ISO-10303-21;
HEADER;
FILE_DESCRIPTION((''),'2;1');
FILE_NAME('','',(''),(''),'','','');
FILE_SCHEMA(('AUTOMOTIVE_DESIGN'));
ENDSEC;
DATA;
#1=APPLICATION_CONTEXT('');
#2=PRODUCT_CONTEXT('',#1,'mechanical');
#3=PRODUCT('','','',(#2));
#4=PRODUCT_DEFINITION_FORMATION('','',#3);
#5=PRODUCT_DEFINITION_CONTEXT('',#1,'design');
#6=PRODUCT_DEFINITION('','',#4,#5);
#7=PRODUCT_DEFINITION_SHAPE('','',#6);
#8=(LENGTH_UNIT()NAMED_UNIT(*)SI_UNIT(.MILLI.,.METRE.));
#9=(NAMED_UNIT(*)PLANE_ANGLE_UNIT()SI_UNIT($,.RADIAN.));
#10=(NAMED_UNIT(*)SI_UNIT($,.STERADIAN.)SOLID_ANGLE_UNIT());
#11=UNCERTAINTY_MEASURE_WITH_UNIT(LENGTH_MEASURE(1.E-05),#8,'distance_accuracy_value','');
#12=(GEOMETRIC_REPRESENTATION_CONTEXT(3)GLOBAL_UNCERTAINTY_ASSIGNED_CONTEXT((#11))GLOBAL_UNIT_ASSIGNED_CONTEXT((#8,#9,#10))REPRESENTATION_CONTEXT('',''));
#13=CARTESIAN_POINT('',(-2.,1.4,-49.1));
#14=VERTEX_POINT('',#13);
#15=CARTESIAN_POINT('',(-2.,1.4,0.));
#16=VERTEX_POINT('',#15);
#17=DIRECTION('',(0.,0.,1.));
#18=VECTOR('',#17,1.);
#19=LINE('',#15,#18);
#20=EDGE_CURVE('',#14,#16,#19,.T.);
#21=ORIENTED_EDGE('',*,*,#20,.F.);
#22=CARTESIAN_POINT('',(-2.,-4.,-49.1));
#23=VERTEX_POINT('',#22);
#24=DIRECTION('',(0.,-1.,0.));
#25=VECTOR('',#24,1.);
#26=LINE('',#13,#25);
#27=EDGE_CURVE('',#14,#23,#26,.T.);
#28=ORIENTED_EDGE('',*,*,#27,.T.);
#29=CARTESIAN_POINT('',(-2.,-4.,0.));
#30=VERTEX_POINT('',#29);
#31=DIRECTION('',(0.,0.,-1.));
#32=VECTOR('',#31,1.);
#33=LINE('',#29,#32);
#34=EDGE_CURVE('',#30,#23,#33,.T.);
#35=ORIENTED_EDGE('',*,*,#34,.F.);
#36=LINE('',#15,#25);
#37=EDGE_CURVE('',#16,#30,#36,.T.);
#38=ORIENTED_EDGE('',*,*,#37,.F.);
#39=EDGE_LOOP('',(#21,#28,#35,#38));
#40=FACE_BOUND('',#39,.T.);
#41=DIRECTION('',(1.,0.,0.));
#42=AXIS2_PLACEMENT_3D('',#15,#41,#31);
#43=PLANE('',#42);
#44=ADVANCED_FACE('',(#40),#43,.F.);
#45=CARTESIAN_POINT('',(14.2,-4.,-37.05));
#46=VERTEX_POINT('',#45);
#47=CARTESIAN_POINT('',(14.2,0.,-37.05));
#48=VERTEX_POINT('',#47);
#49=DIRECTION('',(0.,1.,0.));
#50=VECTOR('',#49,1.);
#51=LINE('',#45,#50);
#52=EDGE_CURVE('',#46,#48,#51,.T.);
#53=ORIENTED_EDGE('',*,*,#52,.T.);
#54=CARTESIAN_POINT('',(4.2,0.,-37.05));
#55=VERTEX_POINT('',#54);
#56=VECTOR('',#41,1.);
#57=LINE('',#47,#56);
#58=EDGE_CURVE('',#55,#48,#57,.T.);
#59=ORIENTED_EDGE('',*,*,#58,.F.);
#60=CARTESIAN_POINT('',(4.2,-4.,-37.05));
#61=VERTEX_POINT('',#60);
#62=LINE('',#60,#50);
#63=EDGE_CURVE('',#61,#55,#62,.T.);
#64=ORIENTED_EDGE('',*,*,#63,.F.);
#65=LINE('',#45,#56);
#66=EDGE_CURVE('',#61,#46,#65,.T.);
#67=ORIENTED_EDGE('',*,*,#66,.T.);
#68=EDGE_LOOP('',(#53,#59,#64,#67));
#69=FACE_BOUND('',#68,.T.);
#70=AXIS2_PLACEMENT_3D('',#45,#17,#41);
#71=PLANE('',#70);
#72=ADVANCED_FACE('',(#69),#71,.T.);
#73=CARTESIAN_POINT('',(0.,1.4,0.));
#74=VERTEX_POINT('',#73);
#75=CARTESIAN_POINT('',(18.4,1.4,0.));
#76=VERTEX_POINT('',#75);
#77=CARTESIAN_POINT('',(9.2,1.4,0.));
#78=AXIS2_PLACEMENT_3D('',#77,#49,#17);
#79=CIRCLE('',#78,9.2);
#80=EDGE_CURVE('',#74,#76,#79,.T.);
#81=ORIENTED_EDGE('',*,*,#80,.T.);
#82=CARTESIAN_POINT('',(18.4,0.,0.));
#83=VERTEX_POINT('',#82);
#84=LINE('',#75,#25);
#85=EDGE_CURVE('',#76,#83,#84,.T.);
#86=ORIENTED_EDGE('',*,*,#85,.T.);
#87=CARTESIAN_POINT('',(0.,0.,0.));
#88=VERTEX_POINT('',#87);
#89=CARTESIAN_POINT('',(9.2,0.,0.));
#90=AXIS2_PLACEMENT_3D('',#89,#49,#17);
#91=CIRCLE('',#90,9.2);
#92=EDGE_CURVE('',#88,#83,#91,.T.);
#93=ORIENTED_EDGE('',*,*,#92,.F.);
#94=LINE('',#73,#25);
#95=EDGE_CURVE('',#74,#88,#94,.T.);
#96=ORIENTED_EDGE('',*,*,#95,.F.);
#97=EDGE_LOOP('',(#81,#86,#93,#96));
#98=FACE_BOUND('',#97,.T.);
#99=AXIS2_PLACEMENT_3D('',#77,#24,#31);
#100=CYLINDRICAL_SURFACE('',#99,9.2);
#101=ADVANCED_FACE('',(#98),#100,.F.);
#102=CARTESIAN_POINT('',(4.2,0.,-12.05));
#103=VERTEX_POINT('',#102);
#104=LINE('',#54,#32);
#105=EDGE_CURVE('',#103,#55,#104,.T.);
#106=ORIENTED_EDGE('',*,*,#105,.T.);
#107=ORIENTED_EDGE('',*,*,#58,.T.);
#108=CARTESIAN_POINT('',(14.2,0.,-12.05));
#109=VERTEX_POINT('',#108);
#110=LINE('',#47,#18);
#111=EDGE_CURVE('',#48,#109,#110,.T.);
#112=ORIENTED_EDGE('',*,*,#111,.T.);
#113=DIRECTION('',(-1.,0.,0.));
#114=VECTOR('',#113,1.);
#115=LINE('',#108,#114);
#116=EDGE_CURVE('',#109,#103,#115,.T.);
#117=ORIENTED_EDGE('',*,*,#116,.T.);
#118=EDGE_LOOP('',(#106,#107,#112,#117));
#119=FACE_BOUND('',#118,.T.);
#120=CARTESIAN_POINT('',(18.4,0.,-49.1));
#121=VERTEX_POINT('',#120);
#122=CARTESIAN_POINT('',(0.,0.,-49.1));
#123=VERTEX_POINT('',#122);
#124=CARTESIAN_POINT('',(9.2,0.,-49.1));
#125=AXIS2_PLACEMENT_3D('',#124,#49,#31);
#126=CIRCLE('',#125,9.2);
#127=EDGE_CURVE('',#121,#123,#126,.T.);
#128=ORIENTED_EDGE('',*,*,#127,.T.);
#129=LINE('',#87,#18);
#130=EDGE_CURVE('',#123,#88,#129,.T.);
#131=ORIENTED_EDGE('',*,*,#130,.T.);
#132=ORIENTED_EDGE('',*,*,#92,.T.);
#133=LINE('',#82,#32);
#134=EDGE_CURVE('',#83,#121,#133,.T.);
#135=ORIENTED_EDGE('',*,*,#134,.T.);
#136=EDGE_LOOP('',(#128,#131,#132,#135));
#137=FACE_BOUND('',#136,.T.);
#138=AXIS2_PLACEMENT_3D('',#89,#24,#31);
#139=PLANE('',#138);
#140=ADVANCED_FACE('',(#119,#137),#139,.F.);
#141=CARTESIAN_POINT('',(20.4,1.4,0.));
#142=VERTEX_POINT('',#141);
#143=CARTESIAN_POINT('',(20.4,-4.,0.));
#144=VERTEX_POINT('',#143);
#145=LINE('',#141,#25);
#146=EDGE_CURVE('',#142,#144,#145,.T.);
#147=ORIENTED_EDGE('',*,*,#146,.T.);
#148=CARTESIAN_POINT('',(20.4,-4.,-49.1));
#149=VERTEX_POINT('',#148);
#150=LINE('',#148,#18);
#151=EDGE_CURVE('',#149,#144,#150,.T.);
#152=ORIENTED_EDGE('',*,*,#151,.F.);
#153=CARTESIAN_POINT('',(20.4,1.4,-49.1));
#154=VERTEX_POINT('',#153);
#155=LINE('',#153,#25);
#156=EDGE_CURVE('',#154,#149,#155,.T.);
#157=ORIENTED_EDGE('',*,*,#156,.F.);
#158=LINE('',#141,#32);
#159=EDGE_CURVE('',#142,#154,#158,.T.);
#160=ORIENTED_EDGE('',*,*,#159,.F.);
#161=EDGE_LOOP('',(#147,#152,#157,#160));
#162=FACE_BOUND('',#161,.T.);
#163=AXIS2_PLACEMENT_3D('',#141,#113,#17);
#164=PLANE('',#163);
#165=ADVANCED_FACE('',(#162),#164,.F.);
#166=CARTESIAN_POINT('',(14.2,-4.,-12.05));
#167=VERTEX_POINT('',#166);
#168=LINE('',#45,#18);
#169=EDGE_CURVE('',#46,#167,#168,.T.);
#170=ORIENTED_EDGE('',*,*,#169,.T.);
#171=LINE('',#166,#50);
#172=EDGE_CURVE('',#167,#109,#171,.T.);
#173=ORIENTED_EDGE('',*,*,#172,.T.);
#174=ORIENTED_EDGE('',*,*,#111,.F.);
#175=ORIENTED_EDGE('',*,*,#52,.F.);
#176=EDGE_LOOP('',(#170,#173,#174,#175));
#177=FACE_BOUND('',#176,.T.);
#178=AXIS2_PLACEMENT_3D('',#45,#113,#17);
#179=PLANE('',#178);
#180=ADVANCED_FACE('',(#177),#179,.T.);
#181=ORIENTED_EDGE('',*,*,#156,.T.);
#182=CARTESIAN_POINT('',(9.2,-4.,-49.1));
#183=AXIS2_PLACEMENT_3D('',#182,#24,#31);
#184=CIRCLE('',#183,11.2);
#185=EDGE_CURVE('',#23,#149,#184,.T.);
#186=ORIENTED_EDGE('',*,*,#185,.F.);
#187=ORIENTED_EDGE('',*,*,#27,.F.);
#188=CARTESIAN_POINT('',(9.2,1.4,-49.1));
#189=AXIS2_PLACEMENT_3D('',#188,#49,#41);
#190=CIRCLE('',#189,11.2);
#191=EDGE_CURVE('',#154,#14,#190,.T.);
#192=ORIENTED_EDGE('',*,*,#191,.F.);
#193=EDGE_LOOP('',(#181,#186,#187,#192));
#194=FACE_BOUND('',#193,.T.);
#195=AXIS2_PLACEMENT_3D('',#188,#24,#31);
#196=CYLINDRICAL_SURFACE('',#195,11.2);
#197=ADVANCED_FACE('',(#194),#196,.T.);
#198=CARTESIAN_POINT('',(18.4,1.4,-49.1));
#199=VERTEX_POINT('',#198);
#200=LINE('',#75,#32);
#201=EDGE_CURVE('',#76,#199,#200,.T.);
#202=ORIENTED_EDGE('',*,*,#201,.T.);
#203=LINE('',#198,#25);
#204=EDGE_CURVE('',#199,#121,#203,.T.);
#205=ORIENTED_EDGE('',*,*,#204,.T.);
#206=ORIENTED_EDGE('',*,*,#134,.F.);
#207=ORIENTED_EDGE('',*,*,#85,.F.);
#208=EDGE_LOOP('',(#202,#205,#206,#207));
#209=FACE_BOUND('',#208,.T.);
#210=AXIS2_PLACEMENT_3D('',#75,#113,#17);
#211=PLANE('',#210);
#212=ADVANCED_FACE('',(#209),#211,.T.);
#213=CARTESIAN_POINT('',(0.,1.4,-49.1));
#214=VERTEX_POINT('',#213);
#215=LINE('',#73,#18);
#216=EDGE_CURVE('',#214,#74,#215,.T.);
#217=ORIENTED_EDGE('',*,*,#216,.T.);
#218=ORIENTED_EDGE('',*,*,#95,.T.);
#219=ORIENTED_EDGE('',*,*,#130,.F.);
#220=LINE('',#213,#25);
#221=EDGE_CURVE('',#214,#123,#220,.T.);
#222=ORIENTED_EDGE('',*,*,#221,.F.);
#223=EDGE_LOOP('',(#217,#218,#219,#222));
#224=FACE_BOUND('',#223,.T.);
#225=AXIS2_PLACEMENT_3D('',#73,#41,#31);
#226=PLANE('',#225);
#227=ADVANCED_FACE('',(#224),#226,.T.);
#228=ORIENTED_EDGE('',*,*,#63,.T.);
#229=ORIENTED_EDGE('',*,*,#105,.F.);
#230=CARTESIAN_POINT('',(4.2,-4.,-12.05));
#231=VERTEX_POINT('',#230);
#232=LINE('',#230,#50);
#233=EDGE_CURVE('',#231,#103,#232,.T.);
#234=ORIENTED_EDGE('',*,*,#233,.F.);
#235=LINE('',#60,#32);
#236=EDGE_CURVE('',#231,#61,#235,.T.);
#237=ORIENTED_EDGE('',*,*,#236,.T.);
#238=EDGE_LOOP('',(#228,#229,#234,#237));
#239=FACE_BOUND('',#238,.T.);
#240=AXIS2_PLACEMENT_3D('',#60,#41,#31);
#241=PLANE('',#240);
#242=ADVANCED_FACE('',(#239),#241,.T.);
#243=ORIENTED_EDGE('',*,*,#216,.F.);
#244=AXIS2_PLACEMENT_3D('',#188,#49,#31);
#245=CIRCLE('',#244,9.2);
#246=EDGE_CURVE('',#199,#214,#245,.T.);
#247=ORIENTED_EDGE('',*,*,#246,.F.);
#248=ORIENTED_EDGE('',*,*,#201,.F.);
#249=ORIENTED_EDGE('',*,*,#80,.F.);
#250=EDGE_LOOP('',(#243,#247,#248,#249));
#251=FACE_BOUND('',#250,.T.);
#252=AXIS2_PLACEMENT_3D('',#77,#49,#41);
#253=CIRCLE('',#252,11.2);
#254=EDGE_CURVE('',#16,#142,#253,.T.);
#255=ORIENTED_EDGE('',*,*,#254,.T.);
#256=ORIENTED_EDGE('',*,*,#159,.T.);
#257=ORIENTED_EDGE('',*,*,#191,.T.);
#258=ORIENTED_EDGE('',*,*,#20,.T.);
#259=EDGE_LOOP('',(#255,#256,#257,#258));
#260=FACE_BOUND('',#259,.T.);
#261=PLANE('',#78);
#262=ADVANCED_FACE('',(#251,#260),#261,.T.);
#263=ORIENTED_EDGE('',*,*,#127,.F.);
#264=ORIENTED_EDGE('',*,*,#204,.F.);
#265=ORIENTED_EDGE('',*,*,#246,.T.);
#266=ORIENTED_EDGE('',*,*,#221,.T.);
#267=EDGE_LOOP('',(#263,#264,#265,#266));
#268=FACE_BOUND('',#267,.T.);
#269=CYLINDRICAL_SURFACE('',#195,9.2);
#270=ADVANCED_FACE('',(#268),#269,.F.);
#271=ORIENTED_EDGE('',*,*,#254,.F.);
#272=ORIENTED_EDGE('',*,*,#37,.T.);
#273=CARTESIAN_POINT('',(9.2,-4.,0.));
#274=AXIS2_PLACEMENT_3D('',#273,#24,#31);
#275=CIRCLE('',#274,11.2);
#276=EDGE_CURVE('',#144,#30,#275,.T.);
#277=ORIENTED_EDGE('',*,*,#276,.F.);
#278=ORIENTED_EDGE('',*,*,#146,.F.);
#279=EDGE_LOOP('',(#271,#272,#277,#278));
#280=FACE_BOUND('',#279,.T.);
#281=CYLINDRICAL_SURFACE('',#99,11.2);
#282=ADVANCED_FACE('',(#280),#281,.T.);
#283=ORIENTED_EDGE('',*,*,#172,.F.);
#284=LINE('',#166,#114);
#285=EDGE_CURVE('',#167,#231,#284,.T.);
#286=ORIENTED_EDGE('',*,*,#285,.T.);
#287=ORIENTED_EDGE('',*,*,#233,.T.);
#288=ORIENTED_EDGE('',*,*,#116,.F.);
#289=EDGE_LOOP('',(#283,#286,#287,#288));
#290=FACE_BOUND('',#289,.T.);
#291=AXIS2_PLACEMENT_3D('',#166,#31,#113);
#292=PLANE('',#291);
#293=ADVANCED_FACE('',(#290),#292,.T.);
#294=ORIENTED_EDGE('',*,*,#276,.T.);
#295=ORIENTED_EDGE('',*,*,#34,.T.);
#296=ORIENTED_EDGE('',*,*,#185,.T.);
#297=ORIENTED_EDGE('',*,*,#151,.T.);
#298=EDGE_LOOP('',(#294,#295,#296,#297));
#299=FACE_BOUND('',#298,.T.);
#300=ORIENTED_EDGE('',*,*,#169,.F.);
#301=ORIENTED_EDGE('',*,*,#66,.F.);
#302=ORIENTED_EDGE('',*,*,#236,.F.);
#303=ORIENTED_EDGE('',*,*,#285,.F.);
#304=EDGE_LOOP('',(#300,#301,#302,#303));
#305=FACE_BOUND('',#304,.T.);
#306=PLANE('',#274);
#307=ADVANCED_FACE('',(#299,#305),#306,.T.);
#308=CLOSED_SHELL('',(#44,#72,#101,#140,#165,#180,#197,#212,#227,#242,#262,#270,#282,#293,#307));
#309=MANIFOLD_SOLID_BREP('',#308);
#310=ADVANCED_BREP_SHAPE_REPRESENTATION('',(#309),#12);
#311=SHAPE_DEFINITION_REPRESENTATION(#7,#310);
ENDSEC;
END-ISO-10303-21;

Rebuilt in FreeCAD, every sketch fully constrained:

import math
import FreeCAD as App
import Part
import Sketcher
from FreeCAD import Vector
Q = App.Units.Quantity

doc = App.newDocument("Part")
params = doc.addObject("Spreadsheet::Sheet", "Params")
for row, (alias, value) in enumerate([
    ("sketch1_radius", "11.2 mm"),
    ("sketch1_radius2", "9.2 mm"),
    ("sketch1_height", "49.1 mm"),
    ("pad1_length", "1.4 mm"),
    ("sketch2_radius", "11.2 mm"),
    ("sketch2_width", "10 mm"),
    ("sketch2_height", "25 mm"),
    ("sketch2_height2", "49.1 mm"),
    ("pad2_length", "4 mm"),
], start=1):
    params.set(f"A{row}", alias)
    params.set(f"B{row}", "=" + value)
    params.setAlias(f"B{row}", alias)

body = doc.addObject("PartDesign::Body", "Body")

# Sketch on XZ plane
sketch1 = body.newObject("Sketcher::SketchObject", "Sketch")
sketch1.AttachmentSupport = (doc.getObject("XZ_Plane"), [""])
sketch1.MapMode = "FlatFace"
sketch1.addGeometry(Part.LineSegment(Vector(-2, -49, 0), Vector(-2, 0, 0)), False)
sketch1.addGeometry(Part.ArcOfCircle(Part.Circle(Vector(9, 0, 0), Vector(0, 0, 1), 11), math.radians(0), math.radians(180)), False)
sketch1.addGeometry(Part.LineSegment(Vector(20, 0, 0), Vector(20, -49, 0)), False)
sketch1.addGeometry(Part.ArcOfCircle(Part.Circle(Vector(9, -49, 0), Vector(0, 0, 1), 11), math.radians(180), math.radians(360)), False)
sketch1.addGeometry(Part.LineSegment(Vector(0, 0, 0), Vector(0, -49, 0)), False)
sketch1.addGeometry(Part.ArcOfCircle(Part.Circle(Vector(9, -49, 0), Vector(0, 0, 1), 9), math.radians(180), math.radians(360)), False)
sketch1.addGeometry(Part.LineSegment(Vector(18, -49, 0), Vector(18, 0, 0)), False)
sketch1.addGeometry(Part.ArcOfCircle(Part.Circle(Vector(9, 0, 0), Vector(0, 0, 1), 9), math.radians(0), math.radians(180)), False)
sketch1.addConstraint(Sketcher.Constraint("Tangent", 0, 2, 1, 2))
sketch1.addConstraint(Sketcher.Constraint("Tangent", 1, 1, 2, 1))
sketch1.addConstraint(Sketcher.Constraint("Tangent", 2, 2, 3, 2))
sketch1.addConstraint(Sketcher.Constraint("Tangent", 3, 1, 0, 1))
sketch1.addConstraint(Sketcher.Constraint("Tangent", 4, 2, 5, 1))
sketch1.addConstraint(Sketcher.Constraint("Tangent", 5, 2, 6, 1))
sketch1.addConstraint(Sketcher.Constraint("Tangent", 6, 2, 7, 1))
sketch1.addConstraint(Sketcher.Constraint("Tangent", 7, 2, 4, 1))
sketch1.addConstraint(Sketcher.Constraint("Vertical", 0))
sketch1.addConstraint(Sketcher.Constraint("Vertical", 2))
sketch1.addConstraint(Sketcher.Constraint("Vertical", 4))
sketch1.addConstraint(Sketcher.Constraint("Vertical", 6))
sketch1.addConstraint(Sketcher.Constraint("Coincident", 7, 2, -1, 1))
sketch1.addConstraint(Sketcher.Constraint("Coincident", 5, 3, 3, 3))
sketch1.addConstraint(Sketcher.Constraint("PointOnObject", 1, 3, -1))
sketch1.addConstraint(Sketcher.Constraint("Radius", 1, Q("11.2 mm")))
sketch1.addConstraint(Sketcher.Constraint("Radius", 5, Q("9.2 mm")))
sketch1.addConstraint(Sketcher.Constraint("DistanceY", 0, 1, 0, 2, Q("49.1 mm")))
sketch1.setExpression("Constraints[15]", "Params.sketch1_radius")
sketch1.setExpression("Constraints[16]", "Params.sketch1_radius2")
sketch1.setExpression("Constraints[17]", "Params.sketch1_height")
pad1 = body.newObject("PartDesign::Pad", "Pad")
pad1.Profile = sketch1
pad1.setExpression("Length", "Params.pad1_length")
pad1.Reversed = True

# Sketch on XZ plane
sketch2 = body.newObject("Sketcher::SketchObject", "Sketch001")
sketch2.AttachmentSupport = (doc.getObject("XZ_Plane"), [""])
sketch2.MapMode = "FlatFace"
sketch2.addGeometry(Part.LineSegment(Vector(-2, 0, 0), Vector(-2, -49, 0)), False)
sketch2.addGeometry(Part.ArcOfCircle(Part.Circle(Vector(9, -49, 0), Vector(0, 0, 1), 11), math.radians(180), math.radians(360)), False)
sketch2.addGeometry(Part.LineSegment(Vector(20, -49, 0), Vector(20, 0, 0)), False)
sketch2.addGeometry(Part.ArcOfCircle(Part.Circle(Vector(9, 0, 0), Vector(0, 0, 1), 11), math.radians(0), math.radians(180)), False)
sketch2.addGeometry(Part.LineSegment(Vector(14, -37, 0), Vector(4, -37, 0)), False)
sketch2.addGeometry(Part.LineSegment(Vector(4, -37, 0), Vector(4, -12, 0)), False)
sketch2.addGeometry(Part.LineSegment(Vector(4, -12, 0), Vector(14, -12, 0)), False)
sketch2.addGeometry(Part.LineSegment(Vector(14, -12, 0), Vector(14, -37, 0)), False)
sketch2.addConstraint(Sketcher.Constraint("Tangent", 0, 2, 1, 1))
sketch2.addConstraint(Sketcher.Constraint("Tangent", 1, 2, 2, 1))
sketch2.addConstraint(Sketcher.Constraint("Tangent", 2, 2, 3, 1))
sketch2.addConstraint(Sketcher.Constraint("Tangent", 3, 2, 0, 1))
sketch2.addConstraint(Sketcher.Constraint("Coincident", 4, 2, 5, 1))
sketch2.addConstraint(Sketcher.Constraint("Coincident", 5, 2, 6, 1))
sketch2.addConstraint(Sketcher.Constraint("Coincident", 6, 2, 7, 1))
sketch2.addConstraint(Sketcher.Constraint("Coincident", 7, 2, 4, 1))
sketch2.addConstraint(Sketcher.Constraint("Vertical", 0))
sketch2.addConstraint(Sketcher.Constraint("Vertical", 2))
sketch2.addConstraint(Sketcher.Constraint("Horizontal", 4))
sketch2.addConstraint(Sketcher.Constraint("Vertical", 5))
sketch2.addConstraint(Sketcher.Constraint("Horizontal", 6))
sketch2.addConstraint(Sketcher.Constraint("Vertical", 7))
sketch2.addConstraint(Sketcher.Constraint("PointOnObject", 3, 3, -1))
sketch2.addConstraint(Sketcher.Constraint("Radius", 1, Q("11.2 mm")))
sketch2.addConstraint(Sketcher.Constraint("DistanceX", 4, 2, 4, 1, Q("10 mm")))
sketch2.addConstraint(Sketcher.Constraint("DistanceY", 5, 1, 5, 2, Q("25 mm")))
sketch2.addConstraint(Sketcher.Constraint("DistanceY", 0, 2, 0, 1, Q("49.1 mm")))
sketch2.addConstraint(Sketcher.Constraint("DistanceX", 0, 2, -1, 1, Q("2 mm")))
sketch2.addConstraint(Sketcher.Constraint("DistanceX", 4, 2, 1, 3, Q("5 mm")))
sketch2.addConstraint(Sketcher.Constraint("DistanceY", 4, 2, -1, 1, Q("37.05 mm")))
sketch2.setExpression("Constraints[15]", "Params.sketch2_radius")
sketch2.setExpression("Constraints[16]", "Params.sketch2_width")
sketch2.setExpression("Constraints[17]", "Params.sketch2_height")
sketch2.setExpression("Constraints[18]", "Params.sketch2_height2")
pad2 = body.newObject("PartDesign::Pad", "Pad001")
pad2.Profile = sketch2
pad2.setExpression("Length", "Params.pad2_length")

doc.recompute()
